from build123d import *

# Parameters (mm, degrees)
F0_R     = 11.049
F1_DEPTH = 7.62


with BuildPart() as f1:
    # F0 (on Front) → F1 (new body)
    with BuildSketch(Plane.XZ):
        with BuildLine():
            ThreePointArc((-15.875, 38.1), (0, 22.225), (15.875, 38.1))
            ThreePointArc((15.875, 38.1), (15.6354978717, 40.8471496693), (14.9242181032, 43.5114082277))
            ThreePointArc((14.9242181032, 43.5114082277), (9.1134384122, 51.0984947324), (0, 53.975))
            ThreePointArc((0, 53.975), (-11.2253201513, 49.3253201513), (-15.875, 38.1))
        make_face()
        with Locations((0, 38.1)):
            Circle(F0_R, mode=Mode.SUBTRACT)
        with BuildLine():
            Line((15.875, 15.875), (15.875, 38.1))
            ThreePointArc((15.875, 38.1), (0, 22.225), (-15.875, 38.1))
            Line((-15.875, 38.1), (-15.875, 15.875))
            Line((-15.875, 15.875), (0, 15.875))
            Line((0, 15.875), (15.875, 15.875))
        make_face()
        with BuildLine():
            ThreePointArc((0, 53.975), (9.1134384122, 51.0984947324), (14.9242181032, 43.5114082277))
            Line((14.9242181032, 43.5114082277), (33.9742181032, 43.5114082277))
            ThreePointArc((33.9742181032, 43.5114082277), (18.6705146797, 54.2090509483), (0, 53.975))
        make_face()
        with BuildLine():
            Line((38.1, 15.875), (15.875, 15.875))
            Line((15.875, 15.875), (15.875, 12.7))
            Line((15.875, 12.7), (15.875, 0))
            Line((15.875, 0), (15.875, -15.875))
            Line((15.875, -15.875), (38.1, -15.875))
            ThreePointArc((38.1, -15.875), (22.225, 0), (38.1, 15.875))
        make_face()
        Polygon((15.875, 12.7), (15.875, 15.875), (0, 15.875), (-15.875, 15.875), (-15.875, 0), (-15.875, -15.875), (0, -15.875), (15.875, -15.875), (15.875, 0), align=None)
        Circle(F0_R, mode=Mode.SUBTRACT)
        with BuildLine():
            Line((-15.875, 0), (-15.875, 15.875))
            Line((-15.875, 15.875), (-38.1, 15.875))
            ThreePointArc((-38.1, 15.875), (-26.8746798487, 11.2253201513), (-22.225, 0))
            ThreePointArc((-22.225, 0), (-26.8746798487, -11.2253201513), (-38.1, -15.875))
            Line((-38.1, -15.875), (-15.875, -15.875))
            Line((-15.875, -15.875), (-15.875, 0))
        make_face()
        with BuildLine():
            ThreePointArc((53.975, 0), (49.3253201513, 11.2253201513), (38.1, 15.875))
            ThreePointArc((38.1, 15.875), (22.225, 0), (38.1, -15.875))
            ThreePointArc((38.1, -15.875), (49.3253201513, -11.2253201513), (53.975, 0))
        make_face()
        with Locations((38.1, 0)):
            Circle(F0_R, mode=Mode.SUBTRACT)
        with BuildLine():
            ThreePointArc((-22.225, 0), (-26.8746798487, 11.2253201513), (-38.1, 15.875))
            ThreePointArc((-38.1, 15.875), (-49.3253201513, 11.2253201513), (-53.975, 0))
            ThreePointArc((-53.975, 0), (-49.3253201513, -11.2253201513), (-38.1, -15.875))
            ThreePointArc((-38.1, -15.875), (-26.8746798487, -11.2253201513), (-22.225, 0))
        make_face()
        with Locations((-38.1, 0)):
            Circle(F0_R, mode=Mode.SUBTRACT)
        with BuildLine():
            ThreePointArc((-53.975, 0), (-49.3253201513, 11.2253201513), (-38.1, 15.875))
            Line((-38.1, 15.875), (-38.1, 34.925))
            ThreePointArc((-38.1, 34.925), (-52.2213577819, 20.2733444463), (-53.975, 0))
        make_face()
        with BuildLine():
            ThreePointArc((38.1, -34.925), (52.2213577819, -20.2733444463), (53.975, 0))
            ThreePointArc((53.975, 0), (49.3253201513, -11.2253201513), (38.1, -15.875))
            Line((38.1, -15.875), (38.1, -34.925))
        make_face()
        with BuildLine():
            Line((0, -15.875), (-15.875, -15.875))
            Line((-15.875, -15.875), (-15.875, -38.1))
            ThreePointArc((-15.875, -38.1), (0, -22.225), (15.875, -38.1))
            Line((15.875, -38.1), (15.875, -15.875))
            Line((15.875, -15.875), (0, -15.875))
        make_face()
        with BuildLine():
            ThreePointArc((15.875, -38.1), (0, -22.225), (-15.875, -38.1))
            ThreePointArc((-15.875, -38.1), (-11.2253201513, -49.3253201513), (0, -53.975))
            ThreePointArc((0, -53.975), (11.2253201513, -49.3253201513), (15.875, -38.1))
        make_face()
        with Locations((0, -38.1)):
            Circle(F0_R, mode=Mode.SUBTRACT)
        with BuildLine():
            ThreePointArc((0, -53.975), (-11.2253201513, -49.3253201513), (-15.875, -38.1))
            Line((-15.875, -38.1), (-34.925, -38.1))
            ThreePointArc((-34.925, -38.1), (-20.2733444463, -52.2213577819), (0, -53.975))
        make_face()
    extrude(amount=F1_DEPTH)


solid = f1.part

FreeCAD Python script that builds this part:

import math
import FreeCAD as App
import Part
import Sketcher

V = App.Vector
Q = App.Units.Quantity

doc = App.newDocument("Part")
body = doc.addObject("PartDesign::Body", "Body")

# Sketch on XZ plane
sketch1 = body.newObject("Sketcher::SketchObject", "Sketch")
sketch1.AttachmentSupport = (doc.getObject("XZ_Plane"), [""])
sketch1.MapMode = "FlatFace"
sketch1.addGeometry([
    Part.ArcOfCircle(Part.Circle(V(0, 38.1, 0), V(0, 0, 1), 15.875), math.radians(90), math.radians(180)),  # 0
    Part.LineSegment(V(-15.875, 38.1, 0), V(-15.875, 15.875, 0)),  # 1
    Part.LineSegment(V(-15.875, 15.875, 0), V(-38.1, 15.875, 0)),  # 2
    Part.LineSegment(V(-38.1, 15.875, 0), V(-38.1, 34.925, 0)),  # 3
    Part.ArcOfCircle(Part.Circle(V(-24.473388, 7.660631, 0), V(0, 0, 1), 30.48), math.radians(116.555682), math.radians(194.556408)),  # 4
    Part.ArcOfCircle(Part.Circle(V(-38.1, 0, 0), V(0, 0, 1), 15.875), math.radians(180), math.radians(270)),  # 5
    Part.LineSegment(V(-38.1, -15.875, 0), V(-15.875, -15.875, 0)),  # 6
    Part.LineSegment(V(-15.875, -15.875, 0), V(-15.875, -38.1, 0)),  # 7
    Part.LineSegment(V(-15.875, -38.1, 0), V(-34.925, -38.1, 0)),  # 8
    Part.ArcOfCircle(Part.Circle(V(-7.660631, -24.473388, 0), V(0, 0, 1), 30.48), math.radians(-153.444318), math.radians(-75.443592)),  # 9
    Part.ArcOfCircle(Part.Circle(V(0, -38.1, 0), V(0, 0, 1), 15.875), math.radians(-90), math.radians(0)),  # 10
    Part.LineSegment(V(15.875, -38.1, 0), V(15.875, -15.875, 0)),  # 11
    Part.LineSegment(V(15.875, -15.875, 0), V(38.1, -15.875, 0)),  # 12
    Part.LineSegment(V(38.1, -15.875, 0), V(38.1, -34.925, 0)),  # 13
    Part.ArcOfCircle(Part.Circle(V(24.473388, -7.660631, 0), V(0, 0, 1), 30.48), math.radians(-63.444318), math.radians(14.556408)),  # 14
    Part.ArcOfCircle(Part.Circle(V(38.1, 0, 0), V(0, 0, 1), 15.875), math.radians(0), math.radians(90)),  # 15
    Part.LineSegment(V(38.1, 15.875, 0), V(15.875, 15.875, 0)),  # 16
    Part.LineSegment(V(15.875, 15.875, 0), V(15.875, 38.1, 0)),  # 17
    Part.ArcOfCircle(Part.Circle(V(0, 38.1, 0), V(0, 0, 1), 15.875), math.radians(0), math.radians(19.93026)),  # 18
    Part.LineSegment(V(14.924218, 43.511408, 0), V(33.974218, 43.511408, 0)),  # 19
    Part.ArcOfCircle(Part.Circle(V(9.698957, 25.079314, 0), V(0, 0, 1), 30.48), math.radians(37.209234), math.radians(108.554541)),  # 20
    Part.Circle(V(0, -38.1, 0), V(0, 0, 1), 11.049),  # 21
    Part.Circle(V(-38.1, 0, 0), V(0, 0, 1), 11.049),  # 22
    Part.Circle(V(0, 0, 0), V(0, 0, 1), 11.049),  # 23
    Part.Circle(V(38.1, 0, 0), V(0, 0, 1), 11.049),  # 24
    Part.Circle(V(0, 38.1, 0), V(0, 0, 1), 11.049),  # 25
], False)
sketch1.addConstraint([
    Sketcher.Constraint("Tangent", 0, 2, 1, 1),
    Sketcher.Constraint("Coincident", 1, 2, 2, 1),
    Sketcher.Constraint("Coincident", 2, 2, 3, 1),
    Sketcher.Constraint("Coincident", 3, 2, 4, 1),
    Sketcher.Constraint("Coincident", 4, 2, 5, 1),
    Sketcher.Constraint("Tangent", 5, 2, 6, 1),
    Sketcher.Constraint("Coincident", 6, 2, 7, 1),
    Sketcher.Constraint("Coincident", 7, 2, 8, 1),
    Sketcher.Constraint("Coincident", 8, 2, 9, 1),
    Sketcher.Constraint("Coincident", 9, 2, 10, 1),
    Sketcher.Constraint("Tangent", 10, 2, 11, 1),
    Sketcher.Constraint("Coincident", 11, 2, 12, 1),
    Sketcher.Constraint("Coincident", 12, 2, 13, 1),
    Sketcher.Constraint("Coincident", 13, 2, 14, 1),
    Sketcher.Constraint("Coincident", 14, 2, 15, 1),
    Sketcher.Constraint("Tangent", 15, 2, 16, 1),
    Sketcher.Constraint("Coincident", 16, 2, 17, 1),
    Sketcher.Constraint("Tangent", 17, 2, 18, 1),
    Sketcher.Constraint("Coincident", 18, 2, 19, 1),
    Sketcher.Constraint("Coincident", 19, 2, 20, 1),
    Sketcher.Constraint("Coincident", 20, 2, 0, 1),
    Sketcher.Constraint("Vertical", 1),
    Sketcher.Constraint("Horizontal", 2),
    Sketcher.Constraint("Vertical", 3),
    Sketcher.Constraint("Horizontal", 6),
    Sketcher.Constraint("Vertical", 7),
    Sketcher.Constraint("Horizontal", 8),
    Sketcher.Constraint("Vertical", 11),
    Sketcher.Constraint("Horizontal", 12),
    Sketcher.Constraint("Vertical", 13),
    Sketcher.Constraint("Horizontal", 16),
    Sketcher.Constraint("Vertical", 17),
    Sketcher.Constraint("Horizontal", 19),
    Sketcher.Constraint("Coincident", 23, 3, -1, 1),
    Sketcher.Constraint("Coincident", 18, 3, 0, 3),
    Sketcher.Constraint("Coincident", 21, 3, 10, 3),
    Sketcher.Constraint("Coincident", 22, 3, 5, 3),
    Sketcher.Constraint("Coincident", 24, 3, 15, 3),
    Sketcher.Constraint("Coincident", 25, 3, 0, 3),
    Sketcher.Constraint("Equal", 0, 5),
    Sketcher.Constraint("Equal", 4, 9),
    Sketcher.Constraint("Equal", 5, 10),
    Sketcher.Constraint("Equal", 9, 14),
    Sketcher.Constraint("Equal", 10, 15),
    Sketcher.Constraint("Equal", 15, 18),
    Sketcher.Constraint("Equal", 14, 20),
    Sketcher.Constraint("Equal", 21, 22),
    Sketcher.Constraint("Equal", 22, 23),
    Sketcher.Constraint("Equal", 23, 24),
    Sketcher.Constraint("Equal", 24, 25),
    Sketcher.Constraint("Symmetric", 0, 3, 10, 3, -1, 1),
    Sketcher.Constraint("Symmetric", 4, 3, 14, 3, -1, 1),
    Sketcher.Constraint("Symmetric", 5, 3, 15, 3, -1, 1),
    Sketcher.Constraint("Symmetric", 2, 2, 12, 2, -1, 1),
    Sketcher.Constraint("Symmetric", 7, 2, 17, 2, -1, 1),
    Sketcher.Constraint("Symmetric", 6, 2, 11, 2, -2),
    Sketcher.Constraint("PointOnObject", 5, 3, -1),
    Sketcher.Constraint("PointOnObject", 4, 2, -1),
    Sketcher.Constraint("PointOnObject", 9, 2, -2),
    Sketcher.Constraint("PointOnObject", 20, 2, -2),
    Sketcher.Constraint("Vertical", 22, 3, 2, 2),
    Sketcher.Constraint("Equal", 8, 19),
    Sketcher.Constraint("Equal", 16, 1),
    Sketcher.Constraint("Equal", 19, 3),
    Sketcher.Constraint("Radius", 4, Q("1.2 in")),
    Sketcher.Constraint("Diameter", 21, Q("0.87 in")),
    Sketcher.Constraint("Radius", 0, Q("0.625 in")),
    Sketcher.Constraint("DistanceY", 10, 3, 0, 3, Q("3 in")),
    Sketcher.Constraint("DistanceX", 8, 2, 8, 1, Q("0.75 in")),
    Sketcher.Constraint("DistanceX", -1, 1, 18, 2, Q("14.924218 mm")),
])
pad1 = body.newObject("PartDesign::Pad", "Pad")
pad1.Profile = sketch1
pad1.Length = Q("0.3 in")

doc.recompute()
